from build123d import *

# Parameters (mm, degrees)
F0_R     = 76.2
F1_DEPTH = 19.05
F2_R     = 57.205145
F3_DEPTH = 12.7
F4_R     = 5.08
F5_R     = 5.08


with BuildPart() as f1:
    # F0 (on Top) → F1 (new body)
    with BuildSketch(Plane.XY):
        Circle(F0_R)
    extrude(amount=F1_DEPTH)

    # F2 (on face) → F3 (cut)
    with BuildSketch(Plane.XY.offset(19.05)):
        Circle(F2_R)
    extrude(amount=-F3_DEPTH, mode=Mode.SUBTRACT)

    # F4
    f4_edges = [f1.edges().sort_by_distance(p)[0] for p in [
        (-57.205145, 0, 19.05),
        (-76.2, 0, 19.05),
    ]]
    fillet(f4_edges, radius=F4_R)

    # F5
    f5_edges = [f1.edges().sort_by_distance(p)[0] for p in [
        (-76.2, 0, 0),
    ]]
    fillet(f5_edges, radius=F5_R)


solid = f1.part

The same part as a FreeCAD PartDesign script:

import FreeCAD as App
import Part
import Sketcher

V = App.Vector
Q = App.Units.Quantity


def edges_at(feature, points):
    """Names of the edges that pass closest to the given points."""
    edges = feature.Shape.Edges
    near = lambda p: min(range(len(edges)), key=lambda i: edges[i].distToShape(Part.Vertex(*p))[0])
    return sorted({f"Edge{near(p) + 1}" for p in points})

doc = App.newDocument("Part")
body = doc.addObject("PartDesign::Body", "Body")

# Sketch on XY plane
sketch1 = doc.addObject("Sketcher::SketchObject", "Sketch")
body.addObject(sketch1)
sketch1.AttachmentSupport = (doc.XY_Plane, [""])
sketch1.MapMode = "FlatFace"
sketch1.addGeometry(Part.Circle(V(0, 0, 0), V(0, 0, 1), 76), False)
sketch1.addConstraint([
    Sketcher.Constraint("Coincident", 0, 3, -1, 1),
    Sketcher.Constraint("Diameter", 0, Q("6 in")),
])
pad1 = doc.addObject("PartDesign::Pad", "Pad")
body.addObject(pad1)
pad1.Profile = sketch1
pad1.Length = Q("0.75 in")

# Sketch on XY plane
sketch2 = doc.addObject("Sketcher::SketchObject", "Sketch001")
body.addObject(sketch2)
sketch2.AttachmentSupport = (doc.XY_Plane, [""])
sketch2.MapMode = "FlatFace"
sketch2.AttachmentOffset = App.Placement(V(0, 0, 0.75 * 25.4), App.Rotation())
sketch2.addGeometry(Part.Circle(V(0, 0, 0), V(0, 0, 1), 57), False)
sketch2.addConstraint([
    Sketcher.Constraint("Coincident", 0, 3, -1, 1),
    Sketcher.Constraint("Diameter", 0, 114.41029),
])
pocket1 = doc.addObject("PartDesign::Pocket", "Pocket")
body.addObject(pocket1)
pocket1.Profile = sketch2
pocket1.Length = Q("0.5 in")
doc.recompute()

fillet = doc.addObject("PartDesign::Fillet", "Fillet")
body.addObject(fillet)
fillet.Base = (pocket1, edges_at(pocket1, [(-57.205, 0, 19.05), (-76.2, 0, 19.05)]))
fillet.Radius = Q("0.2 in")
doc.recompute()

fillet2 = doc.addObject("PartDesign::Fillet", "Fillet001")
body.addObject(fillet2)
fillet2.Base = (fillet, edges_at(fillet, [(-76.2, 0, 0)]))
fillet2.Radius = Q("0.2 in")

doc.recompute()
